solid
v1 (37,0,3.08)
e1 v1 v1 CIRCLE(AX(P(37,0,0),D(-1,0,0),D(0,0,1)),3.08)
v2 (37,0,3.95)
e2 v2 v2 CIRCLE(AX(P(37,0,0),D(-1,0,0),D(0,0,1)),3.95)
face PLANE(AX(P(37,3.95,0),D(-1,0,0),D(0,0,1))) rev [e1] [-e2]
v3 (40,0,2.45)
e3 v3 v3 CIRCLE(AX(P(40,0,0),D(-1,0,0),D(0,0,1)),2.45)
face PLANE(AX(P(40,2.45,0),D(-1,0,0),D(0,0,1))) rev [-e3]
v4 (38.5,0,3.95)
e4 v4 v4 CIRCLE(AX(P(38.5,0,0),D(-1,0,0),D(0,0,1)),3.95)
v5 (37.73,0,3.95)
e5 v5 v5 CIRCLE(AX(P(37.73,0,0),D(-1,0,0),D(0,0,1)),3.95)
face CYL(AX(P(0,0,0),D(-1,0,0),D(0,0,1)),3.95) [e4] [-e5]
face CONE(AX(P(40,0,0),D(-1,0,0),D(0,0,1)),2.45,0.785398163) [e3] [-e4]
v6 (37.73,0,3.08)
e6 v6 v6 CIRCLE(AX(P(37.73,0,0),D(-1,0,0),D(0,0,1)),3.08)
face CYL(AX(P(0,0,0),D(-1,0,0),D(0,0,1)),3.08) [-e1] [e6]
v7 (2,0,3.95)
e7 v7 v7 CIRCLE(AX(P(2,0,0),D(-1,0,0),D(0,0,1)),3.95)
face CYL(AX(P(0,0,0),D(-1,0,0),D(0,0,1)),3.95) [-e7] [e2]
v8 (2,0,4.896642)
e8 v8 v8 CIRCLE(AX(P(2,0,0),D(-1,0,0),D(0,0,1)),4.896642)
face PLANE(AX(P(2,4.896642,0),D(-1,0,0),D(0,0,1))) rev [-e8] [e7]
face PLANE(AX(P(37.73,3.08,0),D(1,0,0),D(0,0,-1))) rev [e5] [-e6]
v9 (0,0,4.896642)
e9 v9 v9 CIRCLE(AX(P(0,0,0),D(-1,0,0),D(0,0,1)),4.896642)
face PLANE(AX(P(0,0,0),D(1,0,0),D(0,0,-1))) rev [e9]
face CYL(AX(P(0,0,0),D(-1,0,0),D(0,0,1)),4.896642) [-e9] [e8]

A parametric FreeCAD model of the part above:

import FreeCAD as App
import Part
import Sketcher

V = App.Vector
Q = App.Units.Quantity

doc = App.newDocument("Part")
body = doc.addObject("PartDesign::Body", "Body")

sketch1 = body.newObject("Sketcher::SketchObject", "Sketch")
sketch1.AttachmentSupport = (doc.getObject("XY_Plane"), [""])
sketch1.MapMode = "FlatFace"
sketch1.addGeometry([
    Part.LineSegment(V(0, 4.9, 0), V(0, 0, 0)),
    Part.LineSegment(V(0, 0, 0), V(40, 0, 0)),
    Part.LineSegment(V(40, 0, 0), V(40, 2.5, 0)),
    Part.LineSegment(V(40, 2.5, 0), V(38.5, 4, 0)),
    Part.LineSegment(V(38.5, 4, 0), V(37.7, 4, 0)),
    Part.LineSegment(V(37.7, 4, 0), V(37.7, 3.1, 0)),
    Part.LineSegment(V(37.7, 3.1, 0), V(37, 3.1, 0)),
    Part.LineSegment(V(37, 3.1, 0), V(37, 4, 0)),
    Part.LineSegment(V(37, 4, 0), V(2, 4, 0)),
    Part.LineSegment(V(2, 4, 0), V(2, 4.9, 0)),
    Part.LineSegment(V(2, 4.9, 0), V(0, 4.9, 0)),
], False)
sketch1.addConstraint([
    Sketcher.Constraint("Coincident", 0, 2, 1, 1),
    Sketcher.Constraint("Coincident", 1, 2, 2, 1),
    Sketcher.Constraint("Coincident", 2, 2, 3, 1),
    Sketcher.Constraint("Coincident", 3, 2, 4, 1),
    Sketcher.Constraint("Coincident", 4, 2, 5, 1),
    Sketcher.Constraint("Coincident", 5, 2, 6, 1),
    Sketcher.Constraint("Coincident", 6, 2, 7, 1),
    Sketcher.Constraint("Coincident", 7, 2, 8, 1),
    Sketcher.Constraint("Coincident", 8, 2, 9, 1),
    Sketcher.Constraint("Coincident", 9, 2, 10, 1),
    Sketcher.Constraint("Coincident", 10, 2, 0, 1),
    Sketcher.Constraint("Vertical", 0),
    Sketcher.Constraint("Horizontal", 1),
    Sketcher.Constraint("Vertical", 2),
    Sketcher.Constraint("Horizontal", 4),
    Sketcher.Constraint("Vertical", 5),
    Sketcher.Constraint("Horizontal", 6),
    Sketcher.Constraint("Vertical", 7),
    Sketcher.Constraint("Horizontal", 8),
    Sketcher.Constraint("Vertical", 9),
    Sketcher.Constraint("Horizontal", 10),
    Sketcher.Constraint("Coincident", 0, 2, -1, 1),
    Sketcher.Constraint("Horizontal", 4, 2, 7, 2),
    Sketcher.Constraint("DistanceX", 1, 1, 1, 2, Q("40 mm")),
    Sketcher.Constraint("DistanceX", 8, 2, 8, 1, Q("35 mm")),
    Sketcher.Constraint("DistanceX", 10, 2, 10, 1, Q("2 mm")),
    Sketcher.Constraint("Angle", 3, Q("135 deg")),
    Sketcher.Constraint("DistanceX", 4, 2, 4, 1, Q("0.77 mm")),
    Sketcher.Constraint("DistanceX", 6, 2, 6, 1, Q("0.73 mm")),
    Sketcher.Constraint("DistanceY", 2, 1, 2, 2, Q("2.45 mm")),
    Sketcher.Constraint("DistanceY", 5, 2, 5, 1, Q("0.87 mm")),
    Sketcher.Constraint("DistanceY", 0, 2, 0, 1, Q("4.896642 mm")),
])
revolution = body.newObject("PartDesign::Revolution", "Revolution")
revolution.Profile = sketch1
revolution.ReferenceAxis = (sketch1, ["H_Axis"])
revolution.Angle = 360

doc.recompute()
